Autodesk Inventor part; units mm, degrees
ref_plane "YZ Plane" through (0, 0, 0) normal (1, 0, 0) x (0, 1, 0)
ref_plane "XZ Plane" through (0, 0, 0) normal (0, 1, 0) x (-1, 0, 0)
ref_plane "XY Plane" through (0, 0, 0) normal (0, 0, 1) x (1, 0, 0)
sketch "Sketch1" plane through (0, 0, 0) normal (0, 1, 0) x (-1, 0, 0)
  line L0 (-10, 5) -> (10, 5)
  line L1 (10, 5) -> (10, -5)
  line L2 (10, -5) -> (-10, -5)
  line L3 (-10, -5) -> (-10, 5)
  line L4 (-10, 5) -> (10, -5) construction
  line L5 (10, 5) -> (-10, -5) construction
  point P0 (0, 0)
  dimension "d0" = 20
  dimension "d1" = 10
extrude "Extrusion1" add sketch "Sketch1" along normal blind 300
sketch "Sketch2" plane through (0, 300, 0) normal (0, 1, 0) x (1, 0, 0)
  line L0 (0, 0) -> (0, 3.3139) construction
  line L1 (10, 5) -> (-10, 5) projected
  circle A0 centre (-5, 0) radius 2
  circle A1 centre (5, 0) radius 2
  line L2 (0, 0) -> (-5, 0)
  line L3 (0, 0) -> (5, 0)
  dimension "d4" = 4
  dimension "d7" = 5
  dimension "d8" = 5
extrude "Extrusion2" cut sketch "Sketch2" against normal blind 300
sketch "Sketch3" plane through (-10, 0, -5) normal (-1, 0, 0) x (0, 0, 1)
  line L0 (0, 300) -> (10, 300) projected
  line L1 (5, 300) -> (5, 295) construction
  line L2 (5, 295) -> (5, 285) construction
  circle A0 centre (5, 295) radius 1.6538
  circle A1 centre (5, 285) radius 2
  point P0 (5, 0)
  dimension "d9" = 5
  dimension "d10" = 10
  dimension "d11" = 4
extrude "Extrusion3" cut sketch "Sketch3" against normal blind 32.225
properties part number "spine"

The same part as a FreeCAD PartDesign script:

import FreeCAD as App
import Part
import Sketcher
from FreeCAD import Vector

doc = App.newDocument("Part")
body = doc.addObject("PartDesign::Body", "Body")

# Sketch on XZ plane
sketch1 = body.newObject("Sketcher::SketchObject", "Sketch")
sketch1.AttachmentSupport = (doc.getObject("XZ_Plane"), [""])
sketch1.MapMode = "FlatFace"
sketch1.addGeometry([
    Part.LineSegment(Vector(-10, 5, 0), Vector(10, 5, 0)),
    Part.LineSegment(Vector(10, 5, 0), Vector(10, -5, 0)),
    Part.LineSegment(Vector(10, -5, 0), Vector(-10, -5, 0)),
    Part.LineSegment(Vector(-10, -5, 0), Vector(-10, 5, 0)),
], False)
sketch1.addConstraint([
    Sketcher.Constraint("Coincident", 0, 2, 1, 1),
    Sketcher.Constraint("Coincident", 1, 2, 2, 1),
    Sketcher.Constraint("Coincident", 2, 2, 3, 1),
    Sketcher.Constraint("Coincident", 3, 2, 0, 1),
    Sketcher.Constraint("Horizontal", 0),
    Sketcher.Constraint("Vertical", 1),
    Sketcher.Constraint("Horizontal", 2),
    Sketcher.Constraint("Vertical", 3),
    Sketcher.Constraint("Symmetric", 0, 2, 2, 2, -1, 1),
    Sketcher.Constraint("DistanceX", 0, 1, 0, 2, 20.0),
    Sketcher.Constraint("DistanceY", 1, 2, 1, 1, 10.0),
])
pad1 = body.newObject("PartDesign::Pad", "Pad")
pad1.Profile = sketch1
pad1.Length = 300
pad1.Reversed = True

# Sketch on XZ plane
sketch2 = body.newObject("Sketcher::SketchObject", "Sketch001")
sketch2.AttachmentSupport = (doc.getObject("XZ_Plane"), [""])
sketch2.MapMode = "FlatFace"
sketch2.AttachmentOffset = App.Placement(Vector(0, 0, -300), App.Rotation())
sketch2.addGeometry([
    Part.Circle(Vector(-5, 0, 0), Vector(0, 0, 1), 2),
    Part.Circle(Vector(5, 0, 0), Vector(0, 0, 1), 2),
], False)
sketch2.addConstraint([
    Sketcher.Constraint("Equal", 0, 1),
    Sketcher.Constraint("Symmetric", 0, 3, 1, 3, -1, 1),
    Sketcher.Constraint("PointOnObject", 0, 3, -1),
    Sketcher.Constraint("Diameter", 0, 4.0),
    Sketcher.Constraint("DistanceX", 0, 3, -1, 1, 5.0),
])
pocket1 = body.newObject("PartDesign::Pocket", "Pocket")
pocket1.Profile = sketch2
pocket1.Length = 300
pocket1.Reversed = True

# Sketch on YZ plane
sketch3 = body.newObject("Sketcher::SketchObject", "Sketch002")
sketch3.AttachmentSupport = (doc.getObject("YZ_Plane"), [""])
sketch3.MapMode = "FlatFace"
sketch3.AttachmentOffset = App.Placement(Vector(0, 0, -10), App.Rotation())
sketch3.addGeometry([
    Part.Circle(Vector(295, 0, 0), Vector(0, 0, 1), 1.6538),
    Part.Circle(Vector(285, 0, 0), Vector(0, 0, 1), 2),
], False)
sketch3.addConstraint([
    Sketcher.Constraint("PointOnObject", 0, 3, -1),
    Sketcher.Constraint("PointOnObject", 1, 3, -1),
    Sketcher.Constraint("Diameter", 1, 4.0),
    Sketcher.Constraint("DistanceX", 1, 3, 0, 3, 10.0),
    Sketcher.Constraint("DistanceX", -1, 1, 0, 3, 295.0),
    Sketcher.Constraint("Diameter", 0, 3.3076),
])
pocket2 = body.newObject("PartDesign::Pocket", "Pocket001")
pocket2.Profile = sketch3
pocket2.Length = 32.225
pocket2.Reversed = True

doc.recompute()
